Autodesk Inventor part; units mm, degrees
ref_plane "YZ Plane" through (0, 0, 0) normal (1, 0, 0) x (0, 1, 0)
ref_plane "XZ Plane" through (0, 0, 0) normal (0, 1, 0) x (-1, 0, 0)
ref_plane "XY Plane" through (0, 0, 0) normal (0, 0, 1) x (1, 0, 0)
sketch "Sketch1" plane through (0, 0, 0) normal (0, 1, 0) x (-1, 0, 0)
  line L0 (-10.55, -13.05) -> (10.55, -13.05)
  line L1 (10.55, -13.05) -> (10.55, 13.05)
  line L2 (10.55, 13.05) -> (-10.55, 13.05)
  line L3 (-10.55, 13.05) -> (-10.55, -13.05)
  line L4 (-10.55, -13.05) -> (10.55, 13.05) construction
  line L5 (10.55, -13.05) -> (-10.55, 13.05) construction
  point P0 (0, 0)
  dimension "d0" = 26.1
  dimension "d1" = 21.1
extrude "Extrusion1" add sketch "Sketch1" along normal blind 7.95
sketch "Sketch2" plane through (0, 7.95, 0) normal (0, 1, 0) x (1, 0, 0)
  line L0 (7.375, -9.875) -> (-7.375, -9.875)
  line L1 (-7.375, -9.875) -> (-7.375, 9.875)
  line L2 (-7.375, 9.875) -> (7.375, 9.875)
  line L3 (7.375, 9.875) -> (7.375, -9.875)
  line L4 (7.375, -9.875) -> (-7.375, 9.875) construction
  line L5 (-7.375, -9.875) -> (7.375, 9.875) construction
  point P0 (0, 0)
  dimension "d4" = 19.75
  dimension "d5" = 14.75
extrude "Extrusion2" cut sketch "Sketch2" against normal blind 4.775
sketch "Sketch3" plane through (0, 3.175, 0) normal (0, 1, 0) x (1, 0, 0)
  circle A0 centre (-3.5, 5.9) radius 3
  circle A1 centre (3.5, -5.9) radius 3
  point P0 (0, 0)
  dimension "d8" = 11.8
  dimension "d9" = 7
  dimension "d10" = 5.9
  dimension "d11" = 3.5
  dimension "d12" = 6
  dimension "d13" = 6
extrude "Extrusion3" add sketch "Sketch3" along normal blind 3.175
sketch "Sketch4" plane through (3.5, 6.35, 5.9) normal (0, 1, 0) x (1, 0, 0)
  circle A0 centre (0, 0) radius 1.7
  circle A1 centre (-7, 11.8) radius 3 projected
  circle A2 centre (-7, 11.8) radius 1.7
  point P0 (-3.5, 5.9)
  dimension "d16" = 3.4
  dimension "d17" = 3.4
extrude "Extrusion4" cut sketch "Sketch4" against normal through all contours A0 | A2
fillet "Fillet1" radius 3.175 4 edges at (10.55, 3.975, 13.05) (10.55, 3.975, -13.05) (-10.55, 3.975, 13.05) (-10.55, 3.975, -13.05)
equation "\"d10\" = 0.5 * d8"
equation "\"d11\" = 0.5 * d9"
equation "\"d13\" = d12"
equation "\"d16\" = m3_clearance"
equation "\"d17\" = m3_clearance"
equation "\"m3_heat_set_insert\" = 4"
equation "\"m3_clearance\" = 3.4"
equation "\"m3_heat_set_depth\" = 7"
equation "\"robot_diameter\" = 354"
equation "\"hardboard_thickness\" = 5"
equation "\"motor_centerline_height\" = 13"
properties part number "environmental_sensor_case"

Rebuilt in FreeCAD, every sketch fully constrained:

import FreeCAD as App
import Part
import Sketcher

V = App.Vector


def edges_at(feature, points):
    """Names of the edges that pass closest to the given points."""
    edges = feature.Shape.Edges
    near = lambda p: min(range(len(edges)), key=lambda i: edges[i].distToShape(Part.Vertex(*p))[0])
    return sorted({f"Edge{near(p) + 1}" for p in points})


def add_polygon(sketch, points):
    """Adds a closed chain of lines whose ends are joined by coincident constraints."""
    first, n = sketch.GeometryCount, len(points)
    for a, b in zip(points, points[1:] + points[:1]):
        sketch.addGeometry(Part.LineSegment(App.Vector(*a, 0), App.Vector(*b, 0)), False)
    for i in range(n):
        sketch.addConstraint(Sketcher.Constraint("Coincident", first + i, 2, first + (i + 1) % n, 1))

doc = App.newDocument("Part")
body = doc.addObject("PartDesign::Body", "Body")

sketch1 = body.newObject("Sketcher::SketchObject", "Sketch")
sketch1.AttachmentSupport = (doc.getObject("XZ_Plane"), [""])
sketch1.MapMode = "FlatFace"
add_polygon(sketch1, [(11, 13), (11, -13), (-11, -13), (-11, 13)])
sketch1.addConstraint([
    Sketcher.Constraint("Vertical", 0),
    Sketcher.Constraint("Horizontal", 1),
    Sketcher.Constraint("Vertical", 2),
    Sketcher.Constraint("Horizontal", 3),
    Sketcher.Constraint("Symmetric", 0, 2, 2, 2, -1, 1),
    Sketcher.Constraint("DistanceX", 1, 2, 1, 1, 21.1),
    Sketcher.Constraint("DistanceY", 0, 2, 0, 1, 26.1),
])
pad1 = body.newObject("PartDesign::Pad", "Pad")
pad1.Profile = sketch1
pad1.Length = 7.95
pad1.Reversed = True

sketch2 = body.newObject("Sketcher::SketchObject", "Sketch001")
sketch2.AttachmentSupport = (doc.getObject("XZ_Plane"), [""])
sketch2.MapMode = "FlatFace"
sketch2.AttachmentOffset = App.Placement(V(0, 0, -7.95), App.Rotation())
add_polygon(sketch2, [(-7, 10), (7, 10), (7, -10), (-7, -10)])
sketch2.addConstraint([
    Sketcher.Constraint("Horizontal", 0),
    Sketcher.Constraint("Vertical", 1),
    Sketcher.Constraint("Horizontal", 2),
    Sketcher.Constraint("Vertical", 3),
    Sketcher.Constraint("Symmetric", 0, 2, 2, 2, -1, 1),
    Sketcher.Constraint("DistanceX", 0, 1, 0, 2, 14.75),
    Sketcher.Constraint("DistanceY", 1, 2, 1, 1, 19.75),
])
pocket1 = body.newObject("PartDesign::Pocket", "Pocket")
pocket1.Profile = sketch2
pocket1.Length = 4.775
pocket1.Reversed = True

sketch3 = body.newObject("Sketcher::SketchObject", "Sketch002")
sketch3.AttachmentSupport = (doc.getObject("XZ_Plane"), [""])
sketch3.MapMode = "FlatFace"
sketch3.AttachmentOffset = App.Placement(V(0, 0, -3.175), App.Rotation())
sketch3.addGeometry([
    Part.Circle(V(-3.5, -5.9, 0), V(0, 0, 1), 3),
    Part.Circle(V(3.5, 5.9, 0), V(0, 0, 1), 3),
], False)
sketch3.addConstraint([
    Sketcher.Constraint("Equal", 0, 1),
    Sketcher.Constraint("Symmetric", 0, 3, 1, 3, -1, 1),
    Sketcher.Constraint("Diameter", 0, 6.0),
    Sketcher.Constraint("DistanceX", 0, 3, 1, 3, 7.0),
    Sketcher.Constraint("DistanceY", 0, 3, -1, 1, 5.9),
])
pad2 = body.newObject("PartDesign::Pad", "Pad001")
pad2.Profile = sketch3
pad2.Length = 3.175
pad2.Reversed = True

sketch4 = body.newObject("Sketcher::SketchObject", "Sketch003")
sketch4.AttachmentSupport = (doc.getObject("XZ_Plane"), [""])
sketch4.MapMode = "FlatFace"
sketch4.AttachmentOffset = App.Placement(V(0, 0, -6.35), App.Rotation())
sketch4.addGeometry([
    Part.Circle(V(3.5, 5.9, 0), V(0, 0, 1), 1.7),
    Part.Circle(V(-3.5, -5.9, 0), V(0, 0, 1), 1.7),
], False)
sketch4.addConstraint([
    Sketcher.Constraint("Equal", 0, 1),
    Sketcher.Constraint("Symmetric", 0, 3, 1, 3, -1, 1),
    Sketcher.Constraint("Diameter", 0, 3.4),
    Sketcher.Constraint("DistanceX", 1, 3, 0, 3, 7.0),
    Sketcher.Constraint("DistanceY", -1, 1, 0, 3, 5.9),
])
pocket2 = body.newObject("PartDesign::Pocket", "Pocket001")
pocket2.Profile = sketch4
pocket2.Type = "ThroughAll"
pocket2.Reversed = True
doc.recompute()

fillet = body.newObject("PartDesign::Fillet", "Fillet")
fillet.Base = (pocket2, edges_at(pocket2, [
    (10.55, 3.975, 13.05),
    (10.55, 3.975, -13.05),
    (-10.55, 3.975, 13.05),
    (-10.55, 3.975, -13.05),
]))
fillet.Radius = 3.175

doc.recompute()
